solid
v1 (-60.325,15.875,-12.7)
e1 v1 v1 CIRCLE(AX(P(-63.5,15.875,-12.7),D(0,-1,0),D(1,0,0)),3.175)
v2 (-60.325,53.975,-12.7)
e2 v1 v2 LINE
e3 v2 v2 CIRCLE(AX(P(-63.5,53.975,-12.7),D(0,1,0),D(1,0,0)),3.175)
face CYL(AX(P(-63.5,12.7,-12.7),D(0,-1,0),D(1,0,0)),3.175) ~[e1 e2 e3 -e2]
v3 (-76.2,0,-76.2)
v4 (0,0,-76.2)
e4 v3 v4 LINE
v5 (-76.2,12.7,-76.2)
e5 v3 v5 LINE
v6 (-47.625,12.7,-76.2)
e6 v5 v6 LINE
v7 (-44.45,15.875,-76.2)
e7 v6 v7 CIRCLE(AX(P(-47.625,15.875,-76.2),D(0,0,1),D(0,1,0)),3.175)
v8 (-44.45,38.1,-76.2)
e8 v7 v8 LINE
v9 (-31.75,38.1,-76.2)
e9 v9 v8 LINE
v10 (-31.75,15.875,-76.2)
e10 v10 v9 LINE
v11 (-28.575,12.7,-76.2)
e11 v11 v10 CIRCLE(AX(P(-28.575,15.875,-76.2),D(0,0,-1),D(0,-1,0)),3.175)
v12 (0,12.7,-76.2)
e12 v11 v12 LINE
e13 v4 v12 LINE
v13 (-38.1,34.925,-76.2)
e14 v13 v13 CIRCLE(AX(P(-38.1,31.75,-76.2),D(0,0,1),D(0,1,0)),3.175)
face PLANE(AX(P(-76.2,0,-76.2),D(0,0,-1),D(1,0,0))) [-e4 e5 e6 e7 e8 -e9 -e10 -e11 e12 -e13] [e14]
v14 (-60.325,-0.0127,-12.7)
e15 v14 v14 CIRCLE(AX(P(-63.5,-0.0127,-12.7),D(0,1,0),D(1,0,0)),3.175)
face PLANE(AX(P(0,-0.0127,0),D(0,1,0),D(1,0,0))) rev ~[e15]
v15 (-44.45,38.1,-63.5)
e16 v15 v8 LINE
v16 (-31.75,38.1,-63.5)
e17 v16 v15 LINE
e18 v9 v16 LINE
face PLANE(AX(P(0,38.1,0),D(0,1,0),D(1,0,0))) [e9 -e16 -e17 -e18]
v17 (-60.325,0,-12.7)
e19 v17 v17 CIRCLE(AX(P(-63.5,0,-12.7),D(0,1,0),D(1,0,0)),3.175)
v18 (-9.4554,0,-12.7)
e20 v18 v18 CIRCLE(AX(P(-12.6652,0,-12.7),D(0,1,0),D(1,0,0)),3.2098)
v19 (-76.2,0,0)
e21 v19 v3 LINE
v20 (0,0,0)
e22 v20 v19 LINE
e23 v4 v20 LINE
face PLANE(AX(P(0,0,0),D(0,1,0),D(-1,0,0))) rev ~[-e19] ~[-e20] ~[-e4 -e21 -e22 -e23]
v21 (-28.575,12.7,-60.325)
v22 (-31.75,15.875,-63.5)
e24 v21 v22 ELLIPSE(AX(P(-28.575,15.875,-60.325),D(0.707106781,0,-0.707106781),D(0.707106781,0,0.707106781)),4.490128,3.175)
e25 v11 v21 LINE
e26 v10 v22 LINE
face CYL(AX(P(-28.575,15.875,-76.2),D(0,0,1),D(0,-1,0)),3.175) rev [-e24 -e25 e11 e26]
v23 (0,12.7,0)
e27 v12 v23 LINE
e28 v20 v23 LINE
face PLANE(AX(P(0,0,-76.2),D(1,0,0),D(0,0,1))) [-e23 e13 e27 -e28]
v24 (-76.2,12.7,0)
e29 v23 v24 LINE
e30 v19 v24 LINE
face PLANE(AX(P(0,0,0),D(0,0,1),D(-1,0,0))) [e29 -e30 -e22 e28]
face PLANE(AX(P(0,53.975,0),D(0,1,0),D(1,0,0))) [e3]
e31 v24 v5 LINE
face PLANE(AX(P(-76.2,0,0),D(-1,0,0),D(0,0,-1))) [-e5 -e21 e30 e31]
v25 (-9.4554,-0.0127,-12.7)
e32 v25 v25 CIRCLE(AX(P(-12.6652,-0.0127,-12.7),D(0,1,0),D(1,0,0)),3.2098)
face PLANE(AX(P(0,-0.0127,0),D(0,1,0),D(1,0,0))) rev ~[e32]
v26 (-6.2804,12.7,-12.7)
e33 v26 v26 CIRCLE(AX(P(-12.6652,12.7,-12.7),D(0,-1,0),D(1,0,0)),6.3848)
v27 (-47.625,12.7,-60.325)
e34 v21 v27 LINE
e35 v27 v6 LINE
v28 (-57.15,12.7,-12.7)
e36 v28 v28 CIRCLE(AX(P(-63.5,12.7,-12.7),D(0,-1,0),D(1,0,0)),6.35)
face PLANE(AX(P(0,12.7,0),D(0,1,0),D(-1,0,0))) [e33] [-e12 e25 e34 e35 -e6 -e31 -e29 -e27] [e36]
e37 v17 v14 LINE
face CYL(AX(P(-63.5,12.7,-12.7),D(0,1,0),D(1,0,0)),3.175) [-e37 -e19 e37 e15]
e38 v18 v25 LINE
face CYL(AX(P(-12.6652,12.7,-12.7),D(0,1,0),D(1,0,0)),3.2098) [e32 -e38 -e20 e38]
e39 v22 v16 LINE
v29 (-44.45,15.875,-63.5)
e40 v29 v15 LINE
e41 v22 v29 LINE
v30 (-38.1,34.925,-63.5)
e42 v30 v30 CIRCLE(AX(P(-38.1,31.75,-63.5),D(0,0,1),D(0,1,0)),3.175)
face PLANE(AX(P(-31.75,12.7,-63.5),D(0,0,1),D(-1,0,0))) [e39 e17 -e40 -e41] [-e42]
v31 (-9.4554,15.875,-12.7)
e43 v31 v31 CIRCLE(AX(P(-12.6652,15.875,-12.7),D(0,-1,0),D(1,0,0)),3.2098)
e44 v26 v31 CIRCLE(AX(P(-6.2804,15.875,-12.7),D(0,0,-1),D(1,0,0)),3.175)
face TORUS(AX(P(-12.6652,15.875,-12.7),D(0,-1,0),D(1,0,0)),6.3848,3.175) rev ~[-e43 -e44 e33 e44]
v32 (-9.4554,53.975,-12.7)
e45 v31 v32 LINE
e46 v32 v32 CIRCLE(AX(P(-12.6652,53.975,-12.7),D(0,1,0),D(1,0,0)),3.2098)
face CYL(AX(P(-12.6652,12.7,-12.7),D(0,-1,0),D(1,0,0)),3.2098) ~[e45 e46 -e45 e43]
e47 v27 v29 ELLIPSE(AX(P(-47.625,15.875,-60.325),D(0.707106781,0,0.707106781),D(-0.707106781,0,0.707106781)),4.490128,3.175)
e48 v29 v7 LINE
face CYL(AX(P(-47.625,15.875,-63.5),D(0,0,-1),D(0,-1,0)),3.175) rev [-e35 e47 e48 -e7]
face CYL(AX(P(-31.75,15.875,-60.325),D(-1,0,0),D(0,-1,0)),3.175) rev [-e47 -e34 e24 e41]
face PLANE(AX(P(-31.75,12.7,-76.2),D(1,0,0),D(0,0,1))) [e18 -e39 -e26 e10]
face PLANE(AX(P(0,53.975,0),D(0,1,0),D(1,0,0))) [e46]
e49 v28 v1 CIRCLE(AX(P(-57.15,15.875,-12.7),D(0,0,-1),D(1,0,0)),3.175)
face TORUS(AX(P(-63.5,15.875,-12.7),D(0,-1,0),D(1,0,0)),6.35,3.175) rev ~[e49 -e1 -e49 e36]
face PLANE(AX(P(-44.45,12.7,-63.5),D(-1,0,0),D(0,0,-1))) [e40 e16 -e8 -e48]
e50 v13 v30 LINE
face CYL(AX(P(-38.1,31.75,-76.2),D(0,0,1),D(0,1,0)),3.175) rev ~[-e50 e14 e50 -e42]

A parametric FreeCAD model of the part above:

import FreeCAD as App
import Part
import Sketcher

V = App.Vector
Q = App.Units.Quantity


def edges_at(feature, points):
    """Names of the edges that pass closest to the given points."""
    edges = feature.Shape.Edges
    near = lambda p: min(range(len(edges)), key=lambda i: edges[i].distToShape(Part.Vertex(*p))[0])
    return sorted({f"Edge{near(p) + 1}" for p in points})


def add_polygon(sketch, points):
    """Adds a closed chain of lines whose ends are joined by coincident constraints."""
    first, n = sketch.GeometryCount, len(points)
    for a, b in zip(points, points[1:] + points[:1]):
        sketch.addGeometry(Part.LineSegment(App.Vector(*a, 0), App.Vector(*b, 0)), False)
    for i in range(n):
        sketch.addConstraint(Sketcher.Constraint("Coincident", first + i, 2, first + (i + 1) % n, 1))

doc = App.newDocument("Part")
body = doc.addObject("PartDesign::Body", "Body")

sketch1 = body.newObject("Sketcher::SketchObject", "Sketch")
sketch1.AttachmentSupport = (doc.getObject("XZ_Plane"), [""])
sketch1.MapMode = "FlatFace"
add_polygon(sketch1, [(-76, 0), (0, 0), (0, -76), (-76, -76)])
sketch1.addConstraint([
    Sketcher.Constraint("Horizontal", 0),
    Sketcher.Constraint("Vertical", 1),
    Sketcher.Constraint("Horizontal", 2),
    Sketcher.Constraint("Vertical", 3),
    Sketcher.Constraint("Coincident", 0, 2, -1, 1),
    Sketcher.Constraint("Equal", 2, 1),
    Sketcher.Constraint("DistanceX", 0, 1, 0, 2, Q("3 in")),
])
pad1 = body.newObject("PartDesign::Pad", "Pad")
pad1.Profile = sketch1
pad1.Length = Q("0.5 in")
pad1.Reversed = True

sketch2 = body.newObject("Sketcher::SketchObject", "Sketch001")
sketch2.AttachmentSupport = (doc.getObject("XZ_Plane"), [""])
sketch2.MapMode = "FlatFace"
sketch2.AttachmentOffset = App.Placement(V(0, 0, -0.5 * 25.4), App.Rotation())
sketch2.addGeometry([
    Part.Circle(V(-12.7, -12.7, 0), V(0, 0, 1), 2.5),
    Part.Circle(V(-63.5, -12.7, 0), V(0, 0, 1), 2.5),
], False)
sketch2.addConstraint([
    Sketcher.Constraint("Equal", 0, 1),
    Sketcher.Constraint("Horizontal", 0, 3, 1, 3),
    Sketcher.Constraint("Diameter", 0, Q("0.2 in")),
    Sketcher.Constraint("DistanceX", 1, 3, 0, 3, Q("2 in")),
    Sketcher.Constraint("DistanceX", 0, 3, -1, 1, Q("0.5 in")),
    Sketcher.Constraint("DistanceY", 0, 3, -1, 1, Q("0.5 in")),
])
doc.recompute()
hole = body.newObject("PartDesign::Hole", "Hole")
hole.Profile = sketch2
hole.ThreadType = "None"
hole.Diameter = Q("0.2 in")
hole.DepthType = "Dimension"
hole.Depth = Q("0.375 in")
hole.DrillPoint = "Angled"
hole.DrillPointAngle = 118
hole.Reversed = True

sketch3 = body.newObject("Sketcher::SketchObject", "Sketch002")
sketch3.AttachmentSupport = (doc.getObject("XZ_Plane"), [""])
sketch3.MapMode = "FlatFace"
sketch3.AttachmentOffset = App.Placement(V(0, 0, -0.5 * 25.4), App.Rotation())
add_polygon(sketch3, [(-32, -64), (-32, -76), (-44, -76), (-44, -64)])
sketch3.addConstraint([
    Sketcher.Constraint("Vertical", 0),
    Sketcher.Constraint("Horizontal", 1),
    Sketcher.Constraint("Vertical", 2),
    Sketcher.Constraint("Horizontal", 3),
    Sketcher.Constraint("Equal", 3, 0),
    Sketcher.Constraint("DistanceX", 1, 2, 1, 1, Q("0.5 in")),
    Sketcher.Constraint("DistanceY", 0, 2, -1, 1, Q("3 in")),
    Sketcher.Constraint("DistanceX", 0, 2, -1, 1, Q("1.25 in")),
])
pad2 = body.newObject("PartDesign::Pad", "Pad001")
pad2.Profile = sketch3
pad2.Length = Q("1 in")
pad2.Reversed = True

sketch4 = body.newObject("Sketcher::SketchObject", "Sketch003")
sketch4.AttachmentSupport = (doc.getObject("XY_Plane"), [""])
sketch4.MapMode = "FlatFace"
sketch4.AttachmentOffset = App.Placement(V(0, 0, -3 * 25.4), App.Rotation())
sketch4.addGeometry(Part.Circle(V(-38.1, 31.8, 0), V(0, 0, 1), 3.2), False)
sketch4.addConstraint([
    Sketcher.Constraint("Diameter", 0, Q("0.25 in")),
    Sketcher.Constraint("DistanceX", 0, 3, -1, 1, Q("1.5 in")),
    Sketcher.Constraint("DistanceY", -1, 1, 0, 3, Q("1.25 in")),
])
doc.recompute()
hole2 = body.newObject("PartDesign::Hole", "Hole001")
hole2.Profile = sketch4
hole2.ThreadType = "None"
hole2.Diameter = Q("0.25 in")
hole2.DepthType = "Dimension"
hole2.Depth = Q("0.5625 in")
hole2.DrillPoint = "Angled"
hole2.DrillPointAngle = 118
hole2.Reversed = True
doc.recompute()

fillet = body.newObject("PartDesign::Fillet", "Fillet")
fillet.Base = (hole2, edges_at(hole2, [(-31.75, 12.7, -69.85), (-38.1, 12.7, -63.5), (-44.45, 12.7, -69.85)]))
fillet.Radius = Q("0.125 in")

sketch5 = body.newObject("Sketcher::SketchObject", "Sketch004")
sketch5.AttachmentSupport = (doc.getObject("XZ_Plane"), [""])
sketch5.MapMode = "FlatFace"
sketch5.AttachmentOffset = App.Placement(V(0, 0, -0.5 * 25.4), App.Rotation())
sketch5.addGeometry([
    Part.Circle(V(-63.5, -12.7, 0), V(0, 0, 1), 3.2),
    Part.Circle(V(-12.7, -12.7, 0), V(0, 0, 1), 3.2),
], False)
sketch5.addConstraint([
    Sketcher.Constraint("Equal", 0, 1),
    Sketcher.Constraint("Horizontal", 0, 3, 1, 3),
    Sketcher.Constraint("Diameter", 0, Q("0.25 in")),
    Sketcher.Constraint("DistanceX", 0, 3, 1, 3, Q("2 in")),
    Sketcher.Constraint("DistanceX", 0, 3, -1, 1, Q("2.5 in")),
    Sketcher.Constraint("DistanceY", 0, 3, -1, 1, Q("0.5 in")),
])
doc.recompute()
hole3 = body.newObject("PartDesign::Hole", "Hole002")
hole3.Profile = sketch5
hole3.ThreadType = "None"
hole3.Diameter = Q("0.25 in")
hole3.DepthType = "Dimension"
hole3.Depth = Q("0.375 in")
hole3.DrillPoint = "Angled"
hole3.DrillPointAngle = 118
hole3.Reversed = True

sketch6 = body.newObject("Sketcher::SketchObject", "Sketch005")
sketch6.AttachmentSupport = (doc.getObject("XZ_Plane"), [""])
sketch6.MapMode = "FlatFace"
sketch6.AttachmentOffset = App.Placement(V(0, 0, -0.5 * 25.4), App.Rotation())
sketch6.addGeometry([
    Part.Circle(V(-63.5, -12.7, 0), V(0, 0, 1), 3.2),
    Part.Circle(V(-12.7, -12.7, 0), V(0, 0, 1), 3.2),
], False)
sketch6.addConstraint([
    Sketcher.Constraint("Horizontal", 0, 3, 1, 3),
    Sketcher.Constraint("Diameter", 0, Q("0.25 in")),
    Sketcher.Constraint("DistanceX", 0, 3, -1, 1, Q("2.5 in")),
    Sketcher.Constraint("DistanceY", 0, 3, -1, 1, Q("0.5 in")),
    Sketcher.Constraint("Diameter", 1, Q("6.4196 mm")),
    Sketcher.Constraint("DistanceX", 1, 3, -1, 1, Q("12.6652 mm")),
])
pad3 = body.newObject("PartDesign::Pad", "Pad002")
pad3.Profile = sketch6
pad3.Type = "TwoLengths"
pad3.Length = Q("1.625 in")
pad3.Length2 = Q("0.5005 in")
pad3.Reversed = True
doc.recompute()

fillet2 = body.newObject("PartDesign::Fillet", "Fillet001")
fillet2.Base = (pad3, edges_at(pad3, [(-15.875, 12.7, -12.7)]))
fillet2.Radius = Q("0.125 in")
doc.recompute()

fillet3 = body.newObject("PartDesign::Fillet", "Fillet002")
fillet3.Base = (fillet2, edges_at(fillet2, [(-66.675, 12.7, -12.7)]))
fillet3.Radius = Q("0.125 in")

doc.recompute()
